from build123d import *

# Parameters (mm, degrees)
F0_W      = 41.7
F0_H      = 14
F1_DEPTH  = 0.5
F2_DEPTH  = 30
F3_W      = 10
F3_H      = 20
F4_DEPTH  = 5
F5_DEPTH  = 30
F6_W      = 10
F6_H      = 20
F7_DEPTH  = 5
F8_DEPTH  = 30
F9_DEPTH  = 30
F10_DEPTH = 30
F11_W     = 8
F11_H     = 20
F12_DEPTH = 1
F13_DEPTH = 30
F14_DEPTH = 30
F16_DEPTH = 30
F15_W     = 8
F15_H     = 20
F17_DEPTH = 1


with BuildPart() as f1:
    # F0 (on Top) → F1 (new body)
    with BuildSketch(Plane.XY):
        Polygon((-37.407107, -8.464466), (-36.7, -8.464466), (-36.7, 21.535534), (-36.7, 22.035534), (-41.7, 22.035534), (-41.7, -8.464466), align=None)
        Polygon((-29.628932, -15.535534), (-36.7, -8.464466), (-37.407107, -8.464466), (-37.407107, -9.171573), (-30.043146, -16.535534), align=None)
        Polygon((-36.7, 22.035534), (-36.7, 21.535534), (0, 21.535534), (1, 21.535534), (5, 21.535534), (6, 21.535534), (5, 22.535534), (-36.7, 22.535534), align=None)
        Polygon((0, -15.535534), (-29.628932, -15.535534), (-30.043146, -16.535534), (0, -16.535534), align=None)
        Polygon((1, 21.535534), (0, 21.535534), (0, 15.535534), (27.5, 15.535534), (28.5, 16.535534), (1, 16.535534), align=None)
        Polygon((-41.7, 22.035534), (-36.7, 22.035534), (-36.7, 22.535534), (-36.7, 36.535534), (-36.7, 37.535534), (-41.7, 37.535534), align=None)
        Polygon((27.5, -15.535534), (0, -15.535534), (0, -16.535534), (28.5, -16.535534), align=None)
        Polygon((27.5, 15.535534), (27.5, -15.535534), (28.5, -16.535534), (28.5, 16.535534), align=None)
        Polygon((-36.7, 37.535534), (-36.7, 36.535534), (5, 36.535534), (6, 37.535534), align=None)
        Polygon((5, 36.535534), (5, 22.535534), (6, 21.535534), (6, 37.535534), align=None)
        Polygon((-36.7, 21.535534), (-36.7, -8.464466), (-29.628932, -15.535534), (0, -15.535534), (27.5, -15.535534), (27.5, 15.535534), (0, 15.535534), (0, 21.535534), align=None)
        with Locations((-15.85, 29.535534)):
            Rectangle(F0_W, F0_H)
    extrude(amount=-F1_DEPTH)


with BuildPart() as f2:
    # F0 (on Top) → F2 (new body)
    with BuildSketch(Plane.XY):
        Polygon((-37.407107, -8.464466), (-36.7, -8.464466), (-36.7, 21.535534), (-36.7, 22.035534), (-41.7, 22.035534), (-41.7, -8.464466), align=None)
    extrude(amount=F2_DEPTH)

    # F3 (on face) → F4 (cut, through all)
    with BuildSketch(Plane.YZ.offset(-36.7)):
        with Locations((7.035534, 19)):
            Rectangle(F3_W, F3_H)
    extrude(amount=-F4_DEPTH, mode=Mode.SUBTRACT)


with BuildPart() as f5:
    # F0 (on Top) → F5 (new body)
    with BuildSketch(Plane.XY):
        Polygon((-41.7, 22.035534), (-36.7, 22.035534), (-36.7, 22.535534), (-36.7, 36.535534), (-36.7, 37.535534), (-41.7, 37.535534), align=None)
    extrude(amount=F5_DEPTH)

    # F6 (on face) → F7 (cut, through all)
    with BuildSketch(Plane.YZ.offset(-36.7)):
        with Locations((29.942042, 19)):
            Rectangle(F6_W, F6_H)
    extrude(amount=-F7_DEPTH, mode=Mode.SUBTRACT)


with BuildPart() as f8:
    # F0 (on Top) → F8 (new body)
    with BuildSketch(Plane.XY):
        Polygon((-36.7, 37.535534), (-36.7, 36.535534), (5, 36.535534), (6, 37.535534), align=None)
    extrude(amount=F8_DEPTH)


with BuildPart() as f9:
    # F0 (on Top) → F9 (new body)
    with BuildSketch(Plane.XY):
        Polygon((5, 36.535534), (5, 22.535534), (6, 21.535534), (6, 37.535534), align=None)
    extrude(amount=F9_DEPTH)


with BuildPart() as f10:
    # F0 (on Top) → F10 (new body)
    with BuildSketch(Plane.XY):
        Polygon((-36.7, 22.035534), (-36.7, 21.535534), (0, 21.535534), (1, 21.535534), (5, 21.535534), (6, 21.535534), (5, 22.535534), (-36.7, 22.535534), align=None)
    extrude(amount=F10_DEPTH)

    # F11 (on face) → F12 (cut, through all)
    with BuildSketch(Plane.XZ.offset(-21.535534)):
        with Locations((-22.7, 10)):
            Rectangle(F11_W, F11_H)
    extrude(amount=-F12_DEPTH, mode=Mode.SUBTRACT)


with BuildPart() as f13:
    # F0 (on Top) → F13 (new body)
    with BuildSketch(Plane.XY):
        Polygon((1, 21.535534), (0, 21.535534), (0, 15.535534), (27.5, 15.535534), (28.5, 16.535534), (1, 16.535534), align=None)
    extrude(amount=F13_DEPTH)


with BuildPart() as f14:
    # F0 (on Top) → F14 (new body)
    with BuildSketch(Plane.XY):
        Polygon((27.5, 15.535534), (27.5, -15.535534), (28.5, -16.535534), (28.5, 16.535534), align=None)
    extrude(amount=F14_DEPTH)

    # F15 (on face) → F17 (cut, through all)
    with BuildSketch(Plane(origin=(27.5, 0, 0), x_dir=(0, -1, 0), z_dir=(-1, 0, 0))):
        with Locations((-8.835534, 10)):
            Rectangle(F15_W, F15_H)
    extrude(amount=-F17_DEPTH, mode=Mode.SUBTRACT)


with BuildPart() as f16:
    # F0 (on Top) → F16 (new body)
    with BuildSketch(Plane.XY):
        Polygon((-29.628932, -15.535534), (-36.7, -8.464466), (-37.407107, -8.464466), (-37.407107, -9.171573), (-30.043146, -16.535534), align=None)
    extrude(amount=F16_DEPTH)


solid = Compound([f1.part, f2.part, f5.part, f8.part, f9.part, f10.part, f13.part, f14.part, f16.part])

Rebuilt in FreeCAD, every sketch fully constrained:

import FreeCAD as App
import Part
import Sketcher
from FreeCAD import Vector
Q = App.Units.Quantity


def add_polygon(sketch, points):
    """Adds a closed chain of lines whose ends are joined by coincident constraints."""
    first, n = sketch.GeometryCount, len(points)
    for a, b in zip(points, points[1:] + points[:1]):
        sketch.addGeometry(Part.LineSegment(App.Vector(*a, 0), App.Vector(*b, 0)), False)
    for i in range(n):
        sketch.addConstraint(Sketcher.Constraint("Coincident", first + i, 2, first + (i + 1) % n, 1))

doc = App.newDocument("Part")
params = doc.addObject("Spreadsheet::Sheet", "Params")
for row, (alias, value) in enumerate([
    ("sketch1_width", "5 mm"),
    ("sketch1_height", "16 mm"),
    ("sketch1_height2", "46 mm"),
    ("sketch1_width2", "27.5 mm"),
    ("sketch1_width3", "47.7 mm"),
    ("pad1_length", "0.5 mm"),
    ("sketch2_width", "5 mm"),
    ("sketch2_height", "30.5 mm"),
    ("pad2_length", "30 mm"),
    ("sketch3_width", "10 mm"),
    ("sketch3_height", "20 mm"),
    ("sketch4_width", "5 mm"),
    ("sketch4_height", "15.5 mm"),
    ("pad3_length", "30 mm"),
    ("sketch5_width", "10 mm"),
    ("sketch5_height", "20 mm"),
    ("sketch6_height", "1 mm"),
    ("sketch6_width", "41.7 mm"),
    ("pad4_length", "30 mm"),
    ("sketch7_height", "14 mm"),
    ("sketch7_height2", "16 mm"),
    ("pad5_length", "30 mm"),
    ("sketch8_height", "1 mm"),
    ("sketch8_width", "42.7 mm"),
    ("pad6_length", "30 mm"),
    ("sketch9_width", "8 mm"),
    ("sketch9_height", "20 mm"),
    ("sketch10_width", "1 mm"),
    ("sketch10_height", "6 mm"),
    ("sketch10_height2", "5 mm"),
    ("sketch10_width2", "27.5 mm"),
    ("pad7_length", "30 mm"),
    ("pad8_length", "30 mm"),
    ("sketch12_width", "8 mm"),
    ("sketch12_height", "20 mm"),
    ("sketch13_length", "10 mm"),
    ("pad9_length", "30 mm"),
], start=1):
    params.set(f"A{row}", alias)
    params.set(f"B{row}", "=" + value)
    params.setAlias(f"B{row}", alias)

body = doc.addObject("PartDesign::Body", "Body")

# Sketch on XY plane
sketch1 = body.newObject("Sketcher::SketchObject", "Sketch")
sketch1.AttachmentSupport = (doc.getObject("XY_Plane"), [""])
sketch1.MapMode = "FlatFace"
add_polygon(sketch1, [(28.5, 16.5), (1, 16.5), (1, 21.5), (6, 21.5), (6, 37.5), (-41.7, 37.5), (-41.7, -8.5), (-37.4, -8.5), (-37.4, -9.2), (-30, -16.5), (28.5, -16.5)])  # lines 0-10
sketch1.addConstraint([
    Sketcher.Constraint("Horizontal", 0),
    Sketcher.Constraint("Vertical", 1),
    Sketcher.Constraint("Horizontal", 2),
    Sketcher.Constraint("Vertical", 3),
    Sketcher.Constraint("Horizontal", 4),
    Sketcher.Constraint("Vertical", 5),
    Sketcher.Constraint("Horizontal", 6),
    Sketcher.Constraint("Vertical", 7),
    Sketcher.Constraint("Horizontal", 9),
    Sketcher.Constraint("Vertical", 10),
    Sketcher.Constraint("Equal", 2, 1),
    Sketcher.Constraint("DistanceX", 2, 1, 2, 2, Q("5 mm")),
    Sketcher.Constraint("DistanceY", 3, 1, 3, 2, Q("16 mm")),
    Sketcher.Constraint("DistanceY", 5, 2, 5, 1, Q("46 mm")),
    Sketcher.Constraint("Angle", 8, Q("-45 deg")),
    Sketcher.Constraint("DistanceX", 0, 2, 0, 1, Q("27.5 mm")),
    Sketcher.Constraint("DistanceX", 4, 2, 4, 1, Q("47.7 mm")),
    Sketcher.Constraint("DistanceX", -1, 1, 0, 2, Q("1 mm")),
    Sketcher.Constraint("DistanceX", 6, 1, 6, 2, Q("4.292893 mm")),
    Sketcher.Constraint("DistanceX", 9, 1, 9, 2, Q("58.543146 mm")),
    Sketcher.Constraint("DistanceY", 7, 2, 7, 1, Q("0.707107 mm")),
    Sketcher.Constraint("DistanceY", -1, 1, 0, 2, Q("16.535534 mm")),
])
sketch1.setExpression("Constraints[22]", "Params.sketch1_width")
sketch1.setExpression("Constraints[23]", "Params.sketch1_height")
sketch1.setExpression("Constraints[24]", "Params.sketch1_height2")
sketch1.setExpression("Constraints[26]", "Params.sketch1_width2")
sketch1.setExpression("Constraints[27]", "Params.sketch1_width3")
pad1 = body.newObject("PartDesign::Pad", "Pad")
pad1.Profile = sketch1
pad1.setExpression("Length", "Params.pad1_length")
pad1.Reversed = True
body2 = doc.addObject("PartDesign::Body", "Body001")

# Sketch on XY plane
sketch2 = body2.newObject("Sketcher::SketchObject", "Sketch001")
sketch2.AttachmentSupport = (doc.getObject("XY_Plane001"), [""])
sketch2.MapMode = "FlatFace"
add_polygon(sketch2, [(-37, -8), (-37, 22), (-42, 22), (-42, -8)])  # lines 0-3
sketch2.addConstraint([
    Sketcher.Constraint("Vertical", 0),
    Sketcher.Constraint("Horizontal", 1),
    Sketcher.Constraint("Vertical", 2),
    Sketcher.Constraint("Horizontal", 3),
    Sketcher.Constraint("DistanceX", 1, 2, 1, 1, Q("5 mm")),
    Sketcher.Constraint("DistanceY", 0, 1, 0, 2, Q("30.5 mm")),
    Sketcher.Constraint("DistanceX", 0, 2, -1, 1, Q("36.7 mm")),
    Sketcher.Constraint("DistanceY", -1, 1, 0, 2, Q("22.035534 mm")),
])
sketch2.setExpression("Constraints[8]", "Params.sketch2_width")
sketch2.setExpression("Constraints[9]", "Params.sketch2_height")
pad2 = body2.newObject("PartDesign::Pad", "Pad001")
pad2.Profile = sketch2
pad2.setExpression("Length", "Params.pad2_length")

# Sketch on YZ plane
sketch3 = body2.newObject("Sketcher::SketchObject", "Sketch002")
sketch3.AttachmentSupport = (doc.getObject("YZ_Plane001"), [""])
sketch3.MapMode = "FlatFace"
sketch3.AttachmentOffset = App.Placement(Vector(0, 0, -36.7), App.Rotation())
add_polygon(sketch3, [(2, 29), (2, 9), (12, 9), (12, 29)])  # lines 0-3
sketch3.addConstraint([
    Sketcher.Constraint("Vertical", 0),
    Sketcher.Constraint("Horizontal", 1),
    Sketcher.Constraint("Vertical", 2),
    Sketcher.Constraint("Horizontal", 3),
    Sketcher.Constraint("DistanceX", 1, 1, 1, 2, Q("10 mm")),
    Sketcher.Constraint("DistanceY", 0, 2, 0, 1, Q("20 mm")),
    Sketcher.Constraint("DistanceY", -1, 1, 0, 2, Q("9 mm")),
    Sketcher.Constraint("DistanceX", -1, 1, 0, 2, Q("2.035534 mm")),
])
sketch3.setExpression("Constraints[8]", "Params.sketch3_width")
sketch3.setExpression("Constraints[9]", "Params.sketch3_height")
pocket1 = body2.newObject("PartDesign::Pocket", "Pocket")
pocket1.Profile = sketch3
pocket1.Type = "ThroughAll"
body3 = doc.addObject("PartDesign::Body", "Body002")

# Sketch on XY plane
sketch4 = body3.newObject("Sketcher::SketchObject", "Sketch003")
sketch4.AttachmentSupport = (doc.getObject("XY_Plane002"), [""])
sketch4.MapMode = "FlatFace"
add_polygon(sketch4, [(-42, 22), (-37, 22), (-37, 38), (-42, 38)])  # lines 0-3
sketch4.addConstraint([
    Sketcher.Constraint("Horizontal", 0),
    Sketcher.Constraint("Vertical", 1),
    Sketcher.Constraint("Horizontal", 2),
    Sketcher.Constraint("Vertical", 3),
    Sketcher.Constraint("DistanceX", 0, 1, 0, 2, Q("5 mm")),
    Sketcher.Constraint("DistanceY", 1, 1, 1, 2, Q("15.5 mm")),
    Sketcher.Constraint("DistanceX", 0, 2, -1, 1, Q("36.7 mm")),
    Sketcher.Constraint("DistanceY", -1, 1, 0, 2, Q("22.035534 mm")),
])
sketch4.setExpression("Constraints[8]", "Params.sketch4_width")
sketch4.setExpression("Constraints[9]", "Params.sketch4_height")
pad3 = body3.newObject("PartDesign::Pad", "Pad002")
pad3.Profile = sketch4
pad3.setExpression("Length", "Params.pad3_length")

# Sketch on YZ plane
sketch5 = body3.newObject("Sketcher::SketchObject", "Sketch004")
sketch5.AttachmentSupport = (doc.getObject("YZ_Plane002"), [""])
sketch5.MapMode = "FlatFace"
sketch5.AttachmentOffset = App.Placement(Vector(0, 0, -36.7), App.Rotation())
add_polygon(sketch5, [(25, 29), (25, 9), (35, 9), (35, 29)])  # lines 0-3
sketch5.addConstraint([
    Sketcher.Constraint("Vertical", 0),
    Sketcher.Constraint("Horizontal", 1),
    Sketcher.Constraint("Vertical", 2),
    Sketcher.Constraint("Horizontal", 3),
    Sketcher.Constraint("DistanceX", 1, 1, 1, 2, Q("10 mm")),
    Sketcher.Constraint("DistanceY", 0, 2, 0, 1, Q("20 mm")),
    Sketcher.Constraint("DistanceY", -1, 1, 0, 2, Q("9 mm")),
    Sketcher.Constraint("DistanceX", -1, 1, 0, 2, Q("24.942042 mm")),
])
sketch5.setExpression("Constraints[8]", "Params.sketch5_width")
sketch5.setExpression("Constraints[9]", "Params.sketch5_height")
pocket2 = body3.newObject("PartDesign::Pocket", "Pocket001")
pocket2.Profile = sketch5
pocket2.Type = "ThroughAll"
body4 = doc.addObject("PartDesign::Body", "Body003")

# Sketch on XY plane
sketch6 = body4.newObject("Sketcher::SketchObject", "Sketch005")
sketch6.AttachmentSupport = (doc.getObject("XY_Plane003"), [""])
sketch6.MapMode = "FlatFace"
add_polygon(sketch6, [(-36.7, 37.5), (-36.7, 36.5), (5, 36.5), (6, 37.5)])  # lines 0-3
sketch6.addConstraint([
    Sketcher.Constraint("Vertical", 0),
    Sketcher.Constraint("Horizontal", 1),
    Sketcher.Constraint("Horizontal", 3),
    Sketcher.Constraint("DistanceY", 0, 2, 0, 1, Q("1 mm")),
    Sketcher.Constraint("Angle", 2, Q("45 deg")),
    Sketcher.Constraint("DistanceX", 1, 1, 1, 2, Q("41.7 mm")),
    Sketcher.Constraint("DistanceX", -1, 1, 1, 2, Q("5 mm")),
    Sketcher.Constraint("DistanceY", -1, 1, 0, 2, Q("36.535534 mm")),
])
sketch6.setExpression("Constraints[7]", "Params.sketch6_height")
sketch6.setExpression("Constraints[9]", "Params.sketch6_width")
pad4 = body4.newObject("PartDesign::Pad", "Pad003")
pad4.Profile = sketch6
pad4.setExpression("Length", "Params.pad4_length")
body5 = doc.addObject("PartDesign::Body", "Body004")

# Sketch on XY plane
sketch7 = body5.newObject("Sketcher::SketchObject", "Sketch006")
sketch7.AttachmentSupport = (doc.getObject("XY_Plane004"), [""])
sketch7.MapMode = "FlatFace"
add_polygon(sketch7, [(5, 36.5), (5, 22.5), (6, 21.5), (6, 37.5)])  # lines 0-3
sketch7.addConstraint([
    Sketcher.Constraint("Vertical", 0),
    Sketcher.Constraint("Vertical", 2),
    Sketcher.Constraint("Perpendicular", 1, 3),
    Sketcher.Constraint("Equal", 1, 3),
    Sketcher.Constraint("DistanceY", 0, 2, 0, 1, Q("14 mm")),
    Sketcher.Constraint("DistanceY", 2, 1, 2, 2, Q("16 mm")),
    Sketcher.Constraint("DistanceX", -1, 1, 0, 2, Q("5 mm")),
    Sketcher.Constraint("DistanceY", -1, 1, 0, 2, Q("22.535534 mm")),
])
sketch7.setExpression("Constraints[8]", "Params.sketch7_height")
sketch7.setExpression("Constraints[9]", "Params.sketch7_height2")
pad5 = body5.newObject("PartDesign::Pad", "Pad004")
pad5.Profile = sketch7
pad5.setExpression("Length", "Params.pad5_length")
body6 = doc.addObject("PartDesign::Body", "Body005")

# Sketch on XY plane
sketch8 = body6.newObject("Sketcher::SketchObject", "Sketch007")
sketch8.AttachmentSupport = (doc.getObject("XY_Plane005"), [""])
sketch8.MapMode = "FlatFace"
add_polygon(sketch8, [(-36.7, 21.5), (6, 21.5), (5, 22.5), (-36.7, 22.5)])  # lines 0-3
sketch8.addConstraint([
    Sketcher.Constraint("Horizontal", 0),
    Sketcher.Constraint("Horizontal", 2),
    Sketcher.Constraint("Vertical", 3),
    Sketcher.Constraint("DistanceY", 3, 2, 3, 1, Q("1 mm")),
    Sketcher.Constraint("Angle", 1, Q("135 deg")),
    Sketcher.Constraint("DistanceX", 0, 1, 0, 2, Q("42.7 mm")),
    Sketcher.Constraint("DistanceX", -1, 1, 0, 2, Q("6 mm")),
    Sketcher.Constraint("DistanceY", -1, 1, 0, 2, Q("21.535534 mm")),
])
sketch8.setExpression("Constraints[7]", "Params.sketch8_height")
sketch8.setExpression("Constraints[9]", "Params.sketch8_width")
pad6 = body6.newObject("PartDesign::Pad", "Pad005")
pad6.Profile = sketch8
pad6.setExpression("Length", "Params.pad6_length")

# Sketch on XZ plane
sketch9 = body6.newObject("Sketcher::SketchObject", "Sketch008")
sketch9.AttachmentSupport = (doc.getObject("XZ_Plane005"), [""])
sketch9.MapMode = "FlatFace"
sketch9.AttachmentOffset = App.Placement(Vector(0, 0, -21.535534), App.Rotation())
add_polygon(sketch9, [(-27, 20), (-27, 0), (-19, 0), (-19, 20)])  # lines 0-3
sketch9.addConstraint([
    Sketcher.Constraint("Vertical", 0),
    Sketcher.Constraint("Horizontal", 1),
    Sketcher.Constraint("Vertical", 2),
    Sketcher.Constraint("Horizontal", 3),
    Sketcher.Constraint("PointOnObject", 0, 2, -1),
    Sketcher.Constraint("DistanceX", 1, 1, 1, 2, Q("8 mm")),
    Sketcher.Constraint("DistanceY", 0, 2, 0, 1, Q("20 mm")),
    Sketcher.Constraint("DistanceX", 0, 2, -1, 1, Q("26.7 mm")),
])
sketch9.setExpression("Constraints[9]", "Params.sketch9_width")
sketch9.setExpression("Constraints[10]", "Params.sketch9_height")
pocket3 = body6.newObject("PartDesign::Pocket", "Pocket002")
pocket3.Profile = sketch9
pocket3.Type = "ThroughAll"
body7 = doc.addObject("PartDesign::Body", "Body006")

# Sketch on XY plane
sketch10 = body7.newObject("Sketcher::SketchObject", "Sketch009")
sketch10.AttachmentSupport = (doc.getObject("XY_Plane006"), [""])
sketch10.MapMode = "FlatFace"
add_polygon(sketch10, [(1, 21.5), (0, 21.5), (0, 15.5), (27.5, 15.5), (28.5, 16.5), (1, 16.5)])  # lines 0-5
sketch10.addConstraint([
    Sketcher.Constraint("Horizontal", 0),
    Sketcher.Constraint("Vertical", 1),
    Sketcher.Constraint("Horizontal", 2),
    Sketcher.Constraint("Horizontal", 4),
    Sketcher.Constraint("Vertical", 5),
    Sketcher.Constraint("PointOnObject", 0, 2, -2),
    Sketcher.Constraint("Equal", 2, 4),
    Sketcher.Constraint("DistanceX", 0, 2, 0, 1, Q("1 mm")),
    Sketcher.Constraint("DistanceY", 1, 2, 1, 1, Q("6 mm")),
    Sketcher.Constraint("DistanceY", 5, 1, 5, 2, Q("5 mm")),
    Sketcher.Constraint("DistanceX", 2, 1, 2, 2, Q("27.5 mm")),
    Sketcher.Constraint("DistanceY", -1, 1, 0, 2, Q("21.535534 mm")),
])
sketch10.setExpression("Constraints[13]", "Params.sketch10_width")
sketch10.setExpression("Constraints[14]", "Params.sketch10_height")
sketch10.setExpression("Constraints[15]", "Params.sketch10_height2")
sketch10.setExpression("Constraints[16]", "Params.sketch10_width2")
pad7 = body7.newObject("PartDesign::Pad", "Pad006")
pad7.Profile = sketch10
pad7.setExpression("Length", "Params.pad7_length")
body8 = doc.addObject("PartDesign::Body", "Body007")

# Sketch on XY plane
sketch11 = body8.newObject("Sketcher::SketchObject", "Sketch010")
sketch11.AttachmentSupport = (doc.getObject("XY_Plane007"), [""])
sketch11.MapMode = "FlatFace"
add_polygon(sketch11, [(27.5, 15.5), (27.5, -15.5), (28.5, -16.5), (28.5, 16.5)])  # lines 0-3
sketch11.addConstraint([
    Sketcher.Constraint("Vertical", 0),
    Sketcher.Constraint("Vertical", 2),
    Sketcher.Constraint("Perpendicular", 1, 3),
    Sketcher.Constraint("Equal", 1, 3),
    Sketcher.Constraint("DistanceX", 0, 2, 1, 2, Q("1 mm")),
    Sketcher.Constraint("DistanceX", -1, 1, 0, 2, Q("27.5 mm")),
    Sketcher.Constraint("DistanceY", 0, 2, 0, 1, Q("31.071068 mm")),
    Sketcher.Constraint("DistanceY", 0, 2, -1, 1, Q("15.535534 mm")),
])
pad8 = body8.newObject("PartDesign::Pad", "Pad007")
pad8.Profile = sketch11
pad8.setExpression("Length", "Params.pad8_length")

# Sketch on YZ plane
sketch12 = body8.newObject("Sketcher::SketchObject", "Sketch011")
sketch12.AttachmentSupport = (doc.getObject("YZ_Plane007"), [""])
sketch12.MapMode = "FlatFace"
sketch12.AttachmentOffset = App.Placement(Vector(0, 0, 27.5), App.Rotation())
add_polygon(sketch12, [(13, 20), (13, 0), (5, 0), (5, 20)])  # lines 0-3
sketch12.addConstraint([
    Sketcher.Constraint("Vertical", 0),
    Sketcher.Constraint("Horizontal", 1),
    Sketcher.Constraint("Vertical", 2),
    Sketcher.Constraint("Horizontal", 3),
    Sketcher.Constraint("PointOnObject", 0, 2, -1),
    Sketcher.Constraint("DistanceX", 1, 2, 1, 1, Q("8 mm")),
    Sketcher.Constraint("DistanceY", 0, 2, 0, 1, Q("20 mm")),
    Sketcher.Constraint("DistanceX", -1, 1, 0, 2, Q("12.835534 mm")),
])
sketch12.setExpression("Constraints[9]", "Params.sketch12_width")
sketch12.setExpression("Constraints[10]", "Params.sketch12_height")
pocket4 = body8.newObject("PartDesign::Pocket", "Pocket003")
pocket4.Profile = sketch12
pocket4.Type = "ThroughAll"
pocket4.Reversed = True
body9 = doc.addObject("PartDesign::Body", "Body008")

# Sketch on XY plane
sketch13 = body9.newObject("Sketcher::SketchObject", "Sketch012")
sketch13.AttachmentSupport = (doc.getObject("XY_Plane008"), [""])
sketch13.MapMode = "FlatFace"
add_polygon(sketch13, [(-29.6, -15.5), (-36.7, -8.5), (-37.4, -8.5), (-37.4, -9.2), (-30, -16.5)])  # lines 0-4
sketch13.addConstraint([
    Sketcher.Constraint("Horizontal", 1),
    Sketcher.Constraint("Vertical", 2),
    Sketcher.Constraint("Parallel", 0, 3),
    Sketcher.Constraint("Equal", 1, 2),
    Sketcher.Constraint("Angle", 0, Q("135 deg")),
    Sketcher.Constraint("Distance", 0, Q("10 mm")),
    Sketcher.Constraint("DistanceY", 3, 2, 4, 2, Q("1 mm")),
    Sketcher.Constraint("DistanceX", 0, 2, -1, 1, Q("36.7 mm")),
    Sketcher.Constraint("DistanceX", 1, 2, 1, 1, Q("0.707107 mm")),
    Sketcher.Constraint("DistanceY", 0, 2, -1, 1, Q("8.464466 mm")),
])
sketch13.setExpression("Constraints[10]", "Params.sketch13_length")
pad9 = body9.newObject("PartDesign::Pad", "Pad008")
pad9.Profile = sketch13
pad9.setExpression("Length", "Params.pad9_length")

doc.recompute()
